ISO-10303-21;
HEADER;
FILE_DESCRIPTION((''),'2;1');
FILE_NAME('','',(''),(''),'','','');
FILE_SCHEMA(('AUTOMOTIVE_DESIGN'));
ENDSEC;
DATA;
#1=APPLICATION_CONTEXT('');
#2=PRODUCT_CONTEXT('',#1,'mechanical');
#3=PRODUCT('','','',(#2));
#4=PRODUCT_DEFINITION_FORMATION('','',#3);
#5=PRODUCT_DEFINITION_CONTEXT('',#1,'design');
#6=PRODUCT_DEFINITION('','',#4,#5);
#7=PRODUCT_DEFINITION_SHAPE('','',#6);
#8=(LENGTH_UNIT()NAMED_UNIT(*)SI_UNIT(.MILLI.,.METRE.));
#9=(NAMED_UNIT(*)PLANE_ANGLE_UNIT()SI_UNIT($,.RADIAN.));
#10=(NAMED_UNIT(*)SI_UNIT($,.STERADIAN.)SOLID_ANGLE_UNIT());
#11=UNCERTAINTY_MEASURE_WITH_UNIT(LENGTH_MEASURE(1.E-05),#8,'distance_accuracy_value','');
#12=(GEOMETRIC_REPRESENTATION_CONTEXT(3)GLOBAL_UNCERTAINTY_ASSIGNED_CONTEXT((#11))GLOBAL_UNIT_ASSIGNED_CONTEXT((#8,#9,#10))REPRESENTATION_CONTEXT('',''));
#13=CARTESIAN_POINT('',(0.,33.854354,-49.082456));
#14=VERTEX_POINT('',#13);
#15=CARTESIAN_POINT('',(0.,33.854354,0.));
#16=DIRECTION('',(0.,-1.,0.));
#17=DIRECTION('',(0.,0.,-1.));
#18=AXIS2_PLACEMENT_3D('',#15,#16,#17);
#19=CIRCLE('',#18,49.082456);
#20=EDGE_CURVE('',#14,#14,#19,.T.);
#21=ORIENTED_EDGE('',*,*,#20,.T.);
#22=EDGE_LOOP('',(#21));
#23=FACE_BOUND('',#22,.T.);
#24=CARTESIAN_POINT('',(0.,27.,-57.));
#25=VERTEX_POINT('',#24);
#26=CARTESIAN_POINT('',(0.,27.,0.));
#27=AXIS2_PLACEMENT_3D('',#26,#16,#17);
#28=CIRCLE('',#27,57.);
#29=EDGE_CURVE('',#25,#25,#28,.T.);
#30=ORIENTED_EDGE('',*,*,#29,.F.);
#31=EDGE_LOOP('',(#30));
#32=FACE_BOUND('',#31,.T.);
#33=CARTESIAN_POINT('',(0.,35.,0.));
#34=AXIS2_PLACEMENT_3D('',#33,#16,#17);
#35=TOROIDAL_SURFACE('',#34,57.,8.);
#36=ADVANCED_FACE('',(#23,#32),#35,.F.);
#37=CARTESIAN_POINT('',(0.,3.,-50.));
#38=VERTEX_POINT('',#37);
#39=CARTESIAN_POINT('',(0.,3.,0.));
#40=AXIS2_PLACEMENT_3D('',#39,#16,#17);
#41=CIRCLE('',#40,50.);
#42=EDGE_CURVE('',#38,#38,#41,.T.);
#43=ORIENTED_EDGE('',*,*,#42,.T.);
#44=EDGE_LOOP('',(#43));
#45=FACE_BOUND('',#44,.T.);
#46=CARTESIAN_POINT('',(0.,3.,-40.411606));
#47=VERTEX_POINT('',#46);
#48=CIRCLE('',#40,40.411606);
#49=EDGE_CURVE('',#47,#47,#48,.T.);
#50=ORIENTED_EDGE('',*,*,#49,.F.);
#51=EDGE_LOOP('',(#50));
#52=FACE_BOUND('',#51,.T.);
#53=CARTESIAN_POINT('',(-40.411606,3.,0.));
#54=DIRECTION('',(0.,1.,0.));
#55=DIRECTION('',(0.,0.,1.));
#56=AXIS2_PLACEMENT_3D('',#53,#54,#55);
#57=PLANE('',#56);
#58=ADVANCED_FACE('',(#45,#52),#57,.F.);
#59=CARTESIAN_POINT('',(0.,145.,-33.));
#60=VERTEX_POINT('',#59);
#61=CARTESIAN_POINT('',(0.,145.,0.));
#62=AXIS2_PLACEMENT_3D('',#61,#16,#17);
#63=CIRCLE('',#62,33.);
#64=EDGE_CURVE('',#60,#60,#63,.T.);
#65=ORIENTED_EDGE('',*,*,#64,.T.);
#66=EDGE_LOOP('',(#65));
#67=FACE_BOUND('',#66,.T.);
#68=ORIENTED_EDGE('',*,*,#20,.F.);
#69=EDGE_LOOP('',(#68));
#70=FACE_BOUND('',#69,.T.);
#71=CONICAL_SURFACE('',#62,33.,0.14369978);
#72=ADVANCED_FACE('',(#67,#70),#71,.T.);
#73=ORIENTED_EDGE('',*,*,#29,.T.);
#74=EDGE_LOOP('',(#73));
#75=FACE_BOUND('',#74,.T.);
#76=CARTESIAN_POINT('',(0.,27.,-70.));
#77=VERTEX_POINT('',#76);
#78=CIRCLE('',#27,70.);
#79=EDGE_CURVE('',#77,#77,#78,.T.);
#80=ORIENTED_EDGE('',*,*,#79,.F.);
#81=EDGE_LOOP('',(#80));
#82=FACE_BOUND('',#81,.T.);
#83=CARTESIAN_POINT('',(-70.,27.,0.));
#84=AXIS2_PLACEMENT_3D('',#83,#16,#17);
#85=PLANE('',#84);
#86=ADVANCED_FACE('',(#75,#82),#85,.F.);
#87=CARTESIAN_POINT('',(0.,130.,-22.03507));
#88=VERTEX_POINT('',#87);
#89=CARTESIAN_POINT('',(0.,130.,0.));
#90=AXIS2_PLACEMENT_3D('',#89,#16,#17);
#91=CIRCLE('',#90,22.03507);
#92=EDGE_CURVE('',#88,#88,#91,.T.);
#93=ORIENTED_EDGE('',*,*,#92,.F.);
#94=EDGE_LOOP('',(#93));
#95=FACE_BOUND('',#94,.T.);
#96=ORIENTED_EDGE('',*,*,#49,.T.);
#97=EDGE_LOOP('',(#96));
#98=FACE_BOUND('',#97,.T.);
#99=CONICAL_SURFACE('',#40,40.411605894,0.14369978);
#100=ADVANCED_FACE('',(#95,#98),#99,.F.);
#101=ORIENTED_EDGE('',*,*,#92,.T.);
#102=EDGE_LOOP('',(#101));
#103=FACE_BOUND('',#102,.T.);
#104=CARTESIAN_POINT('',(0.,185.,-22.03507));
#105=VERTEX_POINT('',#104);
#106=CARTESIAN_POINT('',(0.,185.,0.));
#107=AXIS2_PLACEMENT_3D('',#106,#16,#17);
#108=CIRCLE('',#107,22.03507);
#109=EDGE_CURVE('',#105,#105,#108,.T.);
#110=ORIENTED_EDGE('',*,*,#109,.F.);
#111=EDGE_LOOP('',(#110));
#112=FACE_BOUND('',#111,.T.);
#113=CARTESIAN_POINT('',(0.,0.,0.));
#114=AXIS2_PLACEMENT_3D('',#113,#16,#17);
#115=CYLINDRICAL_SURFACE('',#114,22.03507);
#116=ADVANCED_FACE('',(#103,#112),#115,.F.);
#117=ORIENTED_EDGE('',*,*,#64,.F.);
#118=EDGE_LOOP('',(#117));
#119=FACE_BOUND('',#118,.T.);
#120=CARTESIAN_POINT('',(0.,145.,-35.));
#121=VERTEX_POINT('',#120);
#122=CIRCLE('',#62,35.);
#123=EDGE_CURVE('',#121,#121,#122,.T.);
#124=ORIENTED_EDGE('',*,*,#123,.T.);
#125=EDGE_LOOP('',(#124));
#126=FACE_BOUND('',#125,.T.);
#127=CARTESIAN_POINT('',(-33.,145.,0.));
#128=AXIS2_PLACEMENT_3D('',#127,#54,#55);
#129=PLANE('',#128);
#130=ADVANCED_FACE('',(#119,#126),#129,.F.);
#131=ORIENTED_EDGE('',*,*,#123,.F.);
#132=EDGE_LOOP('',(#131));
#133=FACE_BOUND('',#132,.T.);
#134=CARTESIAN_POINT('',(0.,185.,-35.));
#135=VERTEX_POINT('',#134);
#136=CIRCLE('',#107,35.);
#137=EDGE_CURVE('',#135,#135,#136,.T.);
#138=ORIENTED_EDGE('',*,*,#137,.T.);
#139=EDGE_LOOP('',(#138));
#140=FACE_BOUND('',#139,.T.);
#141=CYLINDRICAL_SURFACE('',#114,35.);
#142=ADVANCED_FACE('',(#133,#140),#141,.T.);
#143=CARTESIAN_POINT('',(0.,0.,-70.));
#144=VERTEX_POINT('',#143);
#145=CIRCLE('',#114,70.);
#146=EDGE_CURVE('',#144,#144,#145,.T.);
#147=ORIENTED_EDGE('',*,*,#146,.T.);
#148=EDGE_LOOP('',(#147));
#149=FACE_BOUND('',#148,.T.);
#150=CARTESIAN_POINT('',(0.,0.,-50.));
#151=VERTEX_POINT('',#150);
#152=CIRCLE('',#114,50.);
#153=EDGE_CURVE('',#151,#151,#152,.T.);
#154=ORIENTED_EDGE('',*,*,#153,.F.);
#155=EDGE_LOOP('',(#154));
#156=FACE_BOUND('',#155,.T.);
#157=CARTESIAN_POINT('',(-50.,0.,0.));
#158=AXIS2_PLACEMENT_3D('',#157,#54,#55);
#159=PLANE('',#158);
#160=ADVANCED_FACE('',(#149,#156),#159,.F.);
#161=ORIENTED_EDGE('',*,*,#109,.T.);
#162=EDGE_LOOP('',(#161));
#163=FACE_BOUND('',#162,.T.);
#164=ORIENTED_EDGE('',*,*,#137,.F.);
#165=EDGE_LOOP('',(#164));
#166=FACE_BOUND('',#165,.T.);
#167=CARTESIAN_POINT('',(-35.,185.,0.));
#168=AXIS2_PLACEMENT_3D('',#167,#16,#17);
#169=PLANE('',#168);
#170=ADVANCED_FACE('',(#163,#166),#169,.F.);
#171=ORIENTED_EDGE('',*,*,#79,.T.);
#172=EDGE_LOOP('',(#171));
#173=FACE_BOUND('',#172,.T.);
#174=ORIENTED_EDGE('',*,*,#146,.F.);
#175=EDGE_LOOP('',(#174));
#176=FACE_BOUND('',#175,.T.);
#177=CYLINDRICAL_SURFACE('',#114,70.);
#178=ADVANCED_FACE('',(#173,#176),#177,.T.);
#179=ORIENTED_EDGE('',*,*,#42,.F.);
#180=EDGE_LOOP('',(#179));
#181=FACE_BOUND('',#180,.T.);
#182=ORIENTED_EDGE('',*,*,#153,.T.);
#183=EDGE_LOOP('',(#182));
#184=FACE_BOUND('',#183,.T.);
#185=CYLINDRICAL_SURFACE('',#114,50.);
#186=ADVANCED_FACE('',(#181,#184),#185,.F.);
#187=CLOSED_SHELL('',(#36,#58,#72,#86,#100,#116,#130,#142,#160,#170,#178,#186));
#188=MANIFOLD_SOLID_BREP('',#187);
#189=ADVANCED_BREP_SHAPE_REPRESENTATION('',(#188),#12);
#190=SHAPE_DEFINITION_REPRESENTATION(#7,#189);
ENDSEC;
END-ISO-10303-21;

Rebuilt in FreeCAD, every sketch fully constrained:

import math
import FreeCAD as App
import Part
import Sketcher
from FreeCAD import Vector
Q = App.Units.Quantity

doc = App.newDocument("Part")
params = doc.addObject("Spreadsheet::Sheet", "Params")
for row, (alias, value) in enumerate([
    ("sketch1_radius", "8 mm"),
    ("sketch1_width", "20 mm"),
    ("sketch1_width2", "2 mm"),
    ("sketch1_width3", "13 mm"),
    ("sketch1_height", "27 mm"),
    ("revolution_angle", "360 deg"),
], start=1):
    params.set(f"A{row}", alias)
    params.set(f"B{row}", "=" + value)
    params.setAlias(f"B{row}", alias)

body = doc.addObject("PartDesign::Body", "Body")

sketch1 = doc.addObject("Sketcher::SketchObject", "Sketch")
body.addObject(sketch1)
sketch1.AttachmentSupport = (doc.XY_Plane, [""])
sketch1.MapMode = "FlatFace"
sketch1.addGeometry([
    Part.LineSegment(Vector(-70, 27, 0), Vector(-70, 0, 0)),
    Part.LineSegment(Vector(-70, 0, 0), Vector(-50, 0, 0)),
    Part.LineSegment(Vector(-50, 0, 0), Vector(-50, 3, 0)),
    Part.LineSegment(Vector(-50, 3, 0), Vector(-40.411606, 3, 0)),
    Part.LineSegment(Vector(-40.411606, 3, 0), Vector(-22.03507, 130, 0)),
    Part.LineSegment(Vector(-22.03507, 130, 0), Vector(-22.03507, 185, 0)),
    Part.LineSegment(Vector(-22.03507, 185, 0), Vector(-35, 185, 0)),
    Part.LineSegment(Vector(-35, 185, 0), Vector(-35, 145, 0)),
    Part.LineSegment(Vector(-35, 145, 0), Vector(-33, 145, 0)),
    Part.LineSegment(Vector(-33, 145, 0), Vector(-49.082456, 33.854354, 0)),
    Part.ArcOfCircle(Part.Circle(Vector(-57, 35, 0), Vector(0, 0, 1), 8), math.radians(-90), math.radians(-8.233391)),
    Part.LineSegment(Vector(-57, 27, 0), Vector(-70, 27, 0)),
], False)
sketch1.addConstraint([
    Sketcher.Constraint("Coincident", 0, 2, 1, 1),
    Sketcher.Constraint("Coincident", 1, 2, 2, 1),
    Sketcher.Constraint("Coincident", 2, 2, 3, 1),
    Sketcher.Constraint("Coincident", 3, 2, 4, 1),
    Sketcher.Constraint("Coincident", 4, 2, 5, 1),
    Sketcher.Constraint("Coincident", 5, 2, 6, 1),
    Sketcher.Constraint("Coincident", 6, 2, 7, 1),
    Sketcher.Constraint("Coincident", 7, 2, 8, 1),
    Sketcher.Constraint("Coincident", 8, 2, 9, 1),
    Sketcher.Constraint("Tangent", 9, 2, 10, 2),
    Sketcher.Constraint("Tangent", 10, 1, 11, 1),
    Sketcher.Constraint("Coincident", 11, 2, 0, 1),
    Sketcher.Constraint("Vertical", 0),
    Sketcher.Constraint("Horizontal", 1),
    Sketcher.Constraint("Vertical", 2),
    Sketcher.Constraint("Horizontal", 3),
    Sketcher.Constraint("Vertical", 5),
    Sketcher.Constraint("Horizontal", 6),
    Sketcher.Constraint("Vertical", 7),
    Sketcher.Constraint("Horizontal", 8),
    Sketcher.Constraint("Horizontal", 11),
    Sketcher.Constraint("PointOnObject", 0, 2, -1),
    Sketcher.Constraint("Parallel", 4, 9),
    Sketcher.Constraint("Radius", 10, Q("8 mm")),
    Sketcher.Constraint("DistanceX", 1, 1, 1, 2, Q("20 mm")),
    Sketcher.Constraint("DistanceX", 8, 1, 8, 2, Q("2 mm")),
    Sketcher.Constraint("DistanceX", 11, 2, 11, 1, Q("13 mm")),
    Sketcher.Constraint("DistanceY", 0, 2, 0, 1, Q("27 mm")),
    Sketcher.Constraint("DistanceY", 2, 1, 2, 2, Q("3 mm")),
    Sketcher.Constraint("DistanceY", 5, 1, 5, 2, Q("55 mm")),
    Sketcher.Constraint("DistanceY", 7, 2, 7, 1, Q("40 mm")),
    Sketcher.Constraint("DistanceX", 10, 3, -1, 1, Q("57 mm")),
    Sketcher.Constraint("DistanceY", -1, 1, 4, 2, Q("130 mm")),
    Sketcher.Constraint("DistanceX", 6, 2, -1, 1, Q("35 mm")),
    Sketcher.Constraint("DistanceX", 6, 2, 6, 1, Q("12.96493 mm")),
])
sketch1.setExpression("Constraints[23]", "Params.sketch1_radius")
sketch1.setExpression("Constraints[24]", "Params.sketch1_width")
sketch1.setExpression("Constraints[25]", "Params.sketch1_width2")
sketch1.setExpression("Constraints[26]", "Params.sketch1_width3")
sketch1.setExpression("Constraints[27]", "Params.sketch1_height")
revolution = doc.addObject("PartDesign::Revolution", "Revolution")
body.addObject(revolution)
revolution.Profile = sketch1
revolution.ReferenceAxis = (sketch1, ["V_Axis"])
revolution.setExpression("Angle", "Params.revolution_angle")

doc.recompute()
